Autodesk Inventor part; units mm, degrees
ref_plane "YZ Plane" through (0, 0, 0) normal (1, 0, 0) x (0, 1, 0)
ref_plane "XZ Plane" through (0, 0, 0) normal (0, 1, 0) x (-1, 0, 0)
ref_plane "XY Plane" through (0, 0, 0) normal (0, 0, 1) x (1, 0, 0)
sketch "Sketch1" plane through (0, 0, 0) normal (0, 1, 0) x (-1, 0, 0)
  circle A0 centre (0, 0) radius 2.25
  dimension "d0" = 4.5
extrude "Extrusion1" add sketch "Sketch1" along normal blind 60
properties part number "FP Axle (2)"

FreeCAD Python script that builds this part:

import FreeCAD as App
import Part
import Sketcher

doc = App.newDocument("Part")
body = doc.addObject("PartDesign::Body", "Body")

# Sketch on XZ plane
sketch1 = body.newObject("Sketcher::SketchObject", "Sketch")
sketch1.AttachmentSupport = (doc.getObject("XZ_Plane"), [""])
sketch1.MapMode = "FlatFace"
sketch1.addGeometry(Part.Circle(App.Vector(0, 0, 0), App.Vector(0, 0, 1), 2.2), False)
sketch1.addConstraint(Sketcher.Constraint("Coincident", 0, 3, -1, 1))
sketch1.addConstraint(Sketcher.Constraint("Diameter", 0, 4.5))
pad1 = body.newObject("PartDesign::Pad", "Pad")
pad1.Profile = sketch1
pad1.Length = 60
pad1.Reversed = True

doc.recompute()
